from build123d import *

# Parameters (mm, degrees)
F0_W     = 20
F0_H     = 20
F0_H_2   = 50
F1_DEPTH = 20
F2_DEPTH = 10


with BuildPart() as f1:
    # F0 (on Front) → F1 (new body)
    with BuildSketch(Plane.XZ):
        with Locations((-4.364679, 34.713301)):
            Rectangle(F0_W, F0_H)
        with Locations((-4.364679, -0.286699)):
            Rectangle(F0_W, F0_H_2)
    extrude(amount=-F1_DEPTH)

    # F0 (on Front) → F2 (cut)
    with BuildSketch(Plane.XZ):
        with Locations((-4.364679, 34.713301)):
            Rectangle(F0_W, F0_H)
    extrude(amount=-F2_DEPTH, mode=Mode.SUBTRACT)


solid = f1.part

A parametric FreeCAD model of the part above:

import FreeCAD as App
import Part
import Sketcher

V = App.Vector
Q = App.Units.Quantity


def add_polygon(sketch, points):
    """Adds a closed chain of lines whose ends are joined by coincident constraints."""
    first, n = sketch.GeometryCount, len(points)
    for a, b in zip(points, points[1:] + points[:1]):
        sketch.addGeometry(Part.LineSegment(App.Vector(*a, 0), App.Vector(*b, 0)), False)
    for i in range(n):
        sketch.addConstraint(Sketcher.Constraint("Coincident", first + i, 2, first + (i + 1) % n, 1))

doc = App.newDocument("Part")
body = doc.addObject("PartDesign::Body", "Body")

sketch1 = body.newObject("Sketcher::SketchObject", "Sketch")
sketch1.AttachmentSupport = (doc.getObject("XZ_Plane"), [""])
sketch1.MapMode = "FlatFace"
add_polygon(sketch1, [(-14, 45), (-14, -25), (6, -25), (6, 45)])
sketch1.addConstraint([
    Sketcher.Constraint("Vertical", 0),
    Sketcher.Constraint("Horizontal", 1),
    Sketcher.Constraint("Vertical", 2),
    Sketcher.Constraint("Horizontal", 3),
    Sketcher.Constraint("DistanceX", 1, 1, 1, 2, Q("20 mm")),
    Sketcher.Constraint("DistanceY", 0, 2, 0, 1, Q("70 mm")),
    Sketcher.Constraint("DistanceY", 0, 2, -1, 1, Q("25.286699 mm")),
    Sketcher.Constraint("DistanceX", 0, 2, -1, 1, Q("14.364679 mm")),
])
pad1 = body.newObject("PartDesign::Pad", "Pad")
pad1.Profile = sketch1
pad1.Length = 20
pad1.Reversed = True

sketch2 = body.newObject("Sketcher::SketchObject", "Sketch001")
sketch2.AttachmentSupport = (doc.getObject("XZ_Plane"), [""])
sketch2.MapMode = "FlatFace"
add_polygon(sketch2, [(-14, 45), (-14, 25), (6, 25), (6, 45)])
sketch2.addConstraint([
    Sketcher.Constraint("Vertical", 0),
    Sketcher.Constraint("Horizontal", 1),
    Sketcher.Constraint("Vertical", 2),
    Sketcher.Constraint("Horizontal", 3),
    Sketcher.Constraint("Equal", 3, 0),
    Sketcher.Constraint("DistanceX", 1, 1, 1, 2, Q("20 mm")),
    Sketcher.Constraint("DistanceY", -1, 1, 0, 2, Q("24.713301 mm")),
    Sketcher.Constraint("DistanceX", 0, 2, -1, 1, Q("14.364679 mm")),
])
pocket1 = body.newObject("PartDesign::Pocket", "Pocket")
pocket1.Profile = sketch2
pocket1.Length = 10

doc.recompute()
